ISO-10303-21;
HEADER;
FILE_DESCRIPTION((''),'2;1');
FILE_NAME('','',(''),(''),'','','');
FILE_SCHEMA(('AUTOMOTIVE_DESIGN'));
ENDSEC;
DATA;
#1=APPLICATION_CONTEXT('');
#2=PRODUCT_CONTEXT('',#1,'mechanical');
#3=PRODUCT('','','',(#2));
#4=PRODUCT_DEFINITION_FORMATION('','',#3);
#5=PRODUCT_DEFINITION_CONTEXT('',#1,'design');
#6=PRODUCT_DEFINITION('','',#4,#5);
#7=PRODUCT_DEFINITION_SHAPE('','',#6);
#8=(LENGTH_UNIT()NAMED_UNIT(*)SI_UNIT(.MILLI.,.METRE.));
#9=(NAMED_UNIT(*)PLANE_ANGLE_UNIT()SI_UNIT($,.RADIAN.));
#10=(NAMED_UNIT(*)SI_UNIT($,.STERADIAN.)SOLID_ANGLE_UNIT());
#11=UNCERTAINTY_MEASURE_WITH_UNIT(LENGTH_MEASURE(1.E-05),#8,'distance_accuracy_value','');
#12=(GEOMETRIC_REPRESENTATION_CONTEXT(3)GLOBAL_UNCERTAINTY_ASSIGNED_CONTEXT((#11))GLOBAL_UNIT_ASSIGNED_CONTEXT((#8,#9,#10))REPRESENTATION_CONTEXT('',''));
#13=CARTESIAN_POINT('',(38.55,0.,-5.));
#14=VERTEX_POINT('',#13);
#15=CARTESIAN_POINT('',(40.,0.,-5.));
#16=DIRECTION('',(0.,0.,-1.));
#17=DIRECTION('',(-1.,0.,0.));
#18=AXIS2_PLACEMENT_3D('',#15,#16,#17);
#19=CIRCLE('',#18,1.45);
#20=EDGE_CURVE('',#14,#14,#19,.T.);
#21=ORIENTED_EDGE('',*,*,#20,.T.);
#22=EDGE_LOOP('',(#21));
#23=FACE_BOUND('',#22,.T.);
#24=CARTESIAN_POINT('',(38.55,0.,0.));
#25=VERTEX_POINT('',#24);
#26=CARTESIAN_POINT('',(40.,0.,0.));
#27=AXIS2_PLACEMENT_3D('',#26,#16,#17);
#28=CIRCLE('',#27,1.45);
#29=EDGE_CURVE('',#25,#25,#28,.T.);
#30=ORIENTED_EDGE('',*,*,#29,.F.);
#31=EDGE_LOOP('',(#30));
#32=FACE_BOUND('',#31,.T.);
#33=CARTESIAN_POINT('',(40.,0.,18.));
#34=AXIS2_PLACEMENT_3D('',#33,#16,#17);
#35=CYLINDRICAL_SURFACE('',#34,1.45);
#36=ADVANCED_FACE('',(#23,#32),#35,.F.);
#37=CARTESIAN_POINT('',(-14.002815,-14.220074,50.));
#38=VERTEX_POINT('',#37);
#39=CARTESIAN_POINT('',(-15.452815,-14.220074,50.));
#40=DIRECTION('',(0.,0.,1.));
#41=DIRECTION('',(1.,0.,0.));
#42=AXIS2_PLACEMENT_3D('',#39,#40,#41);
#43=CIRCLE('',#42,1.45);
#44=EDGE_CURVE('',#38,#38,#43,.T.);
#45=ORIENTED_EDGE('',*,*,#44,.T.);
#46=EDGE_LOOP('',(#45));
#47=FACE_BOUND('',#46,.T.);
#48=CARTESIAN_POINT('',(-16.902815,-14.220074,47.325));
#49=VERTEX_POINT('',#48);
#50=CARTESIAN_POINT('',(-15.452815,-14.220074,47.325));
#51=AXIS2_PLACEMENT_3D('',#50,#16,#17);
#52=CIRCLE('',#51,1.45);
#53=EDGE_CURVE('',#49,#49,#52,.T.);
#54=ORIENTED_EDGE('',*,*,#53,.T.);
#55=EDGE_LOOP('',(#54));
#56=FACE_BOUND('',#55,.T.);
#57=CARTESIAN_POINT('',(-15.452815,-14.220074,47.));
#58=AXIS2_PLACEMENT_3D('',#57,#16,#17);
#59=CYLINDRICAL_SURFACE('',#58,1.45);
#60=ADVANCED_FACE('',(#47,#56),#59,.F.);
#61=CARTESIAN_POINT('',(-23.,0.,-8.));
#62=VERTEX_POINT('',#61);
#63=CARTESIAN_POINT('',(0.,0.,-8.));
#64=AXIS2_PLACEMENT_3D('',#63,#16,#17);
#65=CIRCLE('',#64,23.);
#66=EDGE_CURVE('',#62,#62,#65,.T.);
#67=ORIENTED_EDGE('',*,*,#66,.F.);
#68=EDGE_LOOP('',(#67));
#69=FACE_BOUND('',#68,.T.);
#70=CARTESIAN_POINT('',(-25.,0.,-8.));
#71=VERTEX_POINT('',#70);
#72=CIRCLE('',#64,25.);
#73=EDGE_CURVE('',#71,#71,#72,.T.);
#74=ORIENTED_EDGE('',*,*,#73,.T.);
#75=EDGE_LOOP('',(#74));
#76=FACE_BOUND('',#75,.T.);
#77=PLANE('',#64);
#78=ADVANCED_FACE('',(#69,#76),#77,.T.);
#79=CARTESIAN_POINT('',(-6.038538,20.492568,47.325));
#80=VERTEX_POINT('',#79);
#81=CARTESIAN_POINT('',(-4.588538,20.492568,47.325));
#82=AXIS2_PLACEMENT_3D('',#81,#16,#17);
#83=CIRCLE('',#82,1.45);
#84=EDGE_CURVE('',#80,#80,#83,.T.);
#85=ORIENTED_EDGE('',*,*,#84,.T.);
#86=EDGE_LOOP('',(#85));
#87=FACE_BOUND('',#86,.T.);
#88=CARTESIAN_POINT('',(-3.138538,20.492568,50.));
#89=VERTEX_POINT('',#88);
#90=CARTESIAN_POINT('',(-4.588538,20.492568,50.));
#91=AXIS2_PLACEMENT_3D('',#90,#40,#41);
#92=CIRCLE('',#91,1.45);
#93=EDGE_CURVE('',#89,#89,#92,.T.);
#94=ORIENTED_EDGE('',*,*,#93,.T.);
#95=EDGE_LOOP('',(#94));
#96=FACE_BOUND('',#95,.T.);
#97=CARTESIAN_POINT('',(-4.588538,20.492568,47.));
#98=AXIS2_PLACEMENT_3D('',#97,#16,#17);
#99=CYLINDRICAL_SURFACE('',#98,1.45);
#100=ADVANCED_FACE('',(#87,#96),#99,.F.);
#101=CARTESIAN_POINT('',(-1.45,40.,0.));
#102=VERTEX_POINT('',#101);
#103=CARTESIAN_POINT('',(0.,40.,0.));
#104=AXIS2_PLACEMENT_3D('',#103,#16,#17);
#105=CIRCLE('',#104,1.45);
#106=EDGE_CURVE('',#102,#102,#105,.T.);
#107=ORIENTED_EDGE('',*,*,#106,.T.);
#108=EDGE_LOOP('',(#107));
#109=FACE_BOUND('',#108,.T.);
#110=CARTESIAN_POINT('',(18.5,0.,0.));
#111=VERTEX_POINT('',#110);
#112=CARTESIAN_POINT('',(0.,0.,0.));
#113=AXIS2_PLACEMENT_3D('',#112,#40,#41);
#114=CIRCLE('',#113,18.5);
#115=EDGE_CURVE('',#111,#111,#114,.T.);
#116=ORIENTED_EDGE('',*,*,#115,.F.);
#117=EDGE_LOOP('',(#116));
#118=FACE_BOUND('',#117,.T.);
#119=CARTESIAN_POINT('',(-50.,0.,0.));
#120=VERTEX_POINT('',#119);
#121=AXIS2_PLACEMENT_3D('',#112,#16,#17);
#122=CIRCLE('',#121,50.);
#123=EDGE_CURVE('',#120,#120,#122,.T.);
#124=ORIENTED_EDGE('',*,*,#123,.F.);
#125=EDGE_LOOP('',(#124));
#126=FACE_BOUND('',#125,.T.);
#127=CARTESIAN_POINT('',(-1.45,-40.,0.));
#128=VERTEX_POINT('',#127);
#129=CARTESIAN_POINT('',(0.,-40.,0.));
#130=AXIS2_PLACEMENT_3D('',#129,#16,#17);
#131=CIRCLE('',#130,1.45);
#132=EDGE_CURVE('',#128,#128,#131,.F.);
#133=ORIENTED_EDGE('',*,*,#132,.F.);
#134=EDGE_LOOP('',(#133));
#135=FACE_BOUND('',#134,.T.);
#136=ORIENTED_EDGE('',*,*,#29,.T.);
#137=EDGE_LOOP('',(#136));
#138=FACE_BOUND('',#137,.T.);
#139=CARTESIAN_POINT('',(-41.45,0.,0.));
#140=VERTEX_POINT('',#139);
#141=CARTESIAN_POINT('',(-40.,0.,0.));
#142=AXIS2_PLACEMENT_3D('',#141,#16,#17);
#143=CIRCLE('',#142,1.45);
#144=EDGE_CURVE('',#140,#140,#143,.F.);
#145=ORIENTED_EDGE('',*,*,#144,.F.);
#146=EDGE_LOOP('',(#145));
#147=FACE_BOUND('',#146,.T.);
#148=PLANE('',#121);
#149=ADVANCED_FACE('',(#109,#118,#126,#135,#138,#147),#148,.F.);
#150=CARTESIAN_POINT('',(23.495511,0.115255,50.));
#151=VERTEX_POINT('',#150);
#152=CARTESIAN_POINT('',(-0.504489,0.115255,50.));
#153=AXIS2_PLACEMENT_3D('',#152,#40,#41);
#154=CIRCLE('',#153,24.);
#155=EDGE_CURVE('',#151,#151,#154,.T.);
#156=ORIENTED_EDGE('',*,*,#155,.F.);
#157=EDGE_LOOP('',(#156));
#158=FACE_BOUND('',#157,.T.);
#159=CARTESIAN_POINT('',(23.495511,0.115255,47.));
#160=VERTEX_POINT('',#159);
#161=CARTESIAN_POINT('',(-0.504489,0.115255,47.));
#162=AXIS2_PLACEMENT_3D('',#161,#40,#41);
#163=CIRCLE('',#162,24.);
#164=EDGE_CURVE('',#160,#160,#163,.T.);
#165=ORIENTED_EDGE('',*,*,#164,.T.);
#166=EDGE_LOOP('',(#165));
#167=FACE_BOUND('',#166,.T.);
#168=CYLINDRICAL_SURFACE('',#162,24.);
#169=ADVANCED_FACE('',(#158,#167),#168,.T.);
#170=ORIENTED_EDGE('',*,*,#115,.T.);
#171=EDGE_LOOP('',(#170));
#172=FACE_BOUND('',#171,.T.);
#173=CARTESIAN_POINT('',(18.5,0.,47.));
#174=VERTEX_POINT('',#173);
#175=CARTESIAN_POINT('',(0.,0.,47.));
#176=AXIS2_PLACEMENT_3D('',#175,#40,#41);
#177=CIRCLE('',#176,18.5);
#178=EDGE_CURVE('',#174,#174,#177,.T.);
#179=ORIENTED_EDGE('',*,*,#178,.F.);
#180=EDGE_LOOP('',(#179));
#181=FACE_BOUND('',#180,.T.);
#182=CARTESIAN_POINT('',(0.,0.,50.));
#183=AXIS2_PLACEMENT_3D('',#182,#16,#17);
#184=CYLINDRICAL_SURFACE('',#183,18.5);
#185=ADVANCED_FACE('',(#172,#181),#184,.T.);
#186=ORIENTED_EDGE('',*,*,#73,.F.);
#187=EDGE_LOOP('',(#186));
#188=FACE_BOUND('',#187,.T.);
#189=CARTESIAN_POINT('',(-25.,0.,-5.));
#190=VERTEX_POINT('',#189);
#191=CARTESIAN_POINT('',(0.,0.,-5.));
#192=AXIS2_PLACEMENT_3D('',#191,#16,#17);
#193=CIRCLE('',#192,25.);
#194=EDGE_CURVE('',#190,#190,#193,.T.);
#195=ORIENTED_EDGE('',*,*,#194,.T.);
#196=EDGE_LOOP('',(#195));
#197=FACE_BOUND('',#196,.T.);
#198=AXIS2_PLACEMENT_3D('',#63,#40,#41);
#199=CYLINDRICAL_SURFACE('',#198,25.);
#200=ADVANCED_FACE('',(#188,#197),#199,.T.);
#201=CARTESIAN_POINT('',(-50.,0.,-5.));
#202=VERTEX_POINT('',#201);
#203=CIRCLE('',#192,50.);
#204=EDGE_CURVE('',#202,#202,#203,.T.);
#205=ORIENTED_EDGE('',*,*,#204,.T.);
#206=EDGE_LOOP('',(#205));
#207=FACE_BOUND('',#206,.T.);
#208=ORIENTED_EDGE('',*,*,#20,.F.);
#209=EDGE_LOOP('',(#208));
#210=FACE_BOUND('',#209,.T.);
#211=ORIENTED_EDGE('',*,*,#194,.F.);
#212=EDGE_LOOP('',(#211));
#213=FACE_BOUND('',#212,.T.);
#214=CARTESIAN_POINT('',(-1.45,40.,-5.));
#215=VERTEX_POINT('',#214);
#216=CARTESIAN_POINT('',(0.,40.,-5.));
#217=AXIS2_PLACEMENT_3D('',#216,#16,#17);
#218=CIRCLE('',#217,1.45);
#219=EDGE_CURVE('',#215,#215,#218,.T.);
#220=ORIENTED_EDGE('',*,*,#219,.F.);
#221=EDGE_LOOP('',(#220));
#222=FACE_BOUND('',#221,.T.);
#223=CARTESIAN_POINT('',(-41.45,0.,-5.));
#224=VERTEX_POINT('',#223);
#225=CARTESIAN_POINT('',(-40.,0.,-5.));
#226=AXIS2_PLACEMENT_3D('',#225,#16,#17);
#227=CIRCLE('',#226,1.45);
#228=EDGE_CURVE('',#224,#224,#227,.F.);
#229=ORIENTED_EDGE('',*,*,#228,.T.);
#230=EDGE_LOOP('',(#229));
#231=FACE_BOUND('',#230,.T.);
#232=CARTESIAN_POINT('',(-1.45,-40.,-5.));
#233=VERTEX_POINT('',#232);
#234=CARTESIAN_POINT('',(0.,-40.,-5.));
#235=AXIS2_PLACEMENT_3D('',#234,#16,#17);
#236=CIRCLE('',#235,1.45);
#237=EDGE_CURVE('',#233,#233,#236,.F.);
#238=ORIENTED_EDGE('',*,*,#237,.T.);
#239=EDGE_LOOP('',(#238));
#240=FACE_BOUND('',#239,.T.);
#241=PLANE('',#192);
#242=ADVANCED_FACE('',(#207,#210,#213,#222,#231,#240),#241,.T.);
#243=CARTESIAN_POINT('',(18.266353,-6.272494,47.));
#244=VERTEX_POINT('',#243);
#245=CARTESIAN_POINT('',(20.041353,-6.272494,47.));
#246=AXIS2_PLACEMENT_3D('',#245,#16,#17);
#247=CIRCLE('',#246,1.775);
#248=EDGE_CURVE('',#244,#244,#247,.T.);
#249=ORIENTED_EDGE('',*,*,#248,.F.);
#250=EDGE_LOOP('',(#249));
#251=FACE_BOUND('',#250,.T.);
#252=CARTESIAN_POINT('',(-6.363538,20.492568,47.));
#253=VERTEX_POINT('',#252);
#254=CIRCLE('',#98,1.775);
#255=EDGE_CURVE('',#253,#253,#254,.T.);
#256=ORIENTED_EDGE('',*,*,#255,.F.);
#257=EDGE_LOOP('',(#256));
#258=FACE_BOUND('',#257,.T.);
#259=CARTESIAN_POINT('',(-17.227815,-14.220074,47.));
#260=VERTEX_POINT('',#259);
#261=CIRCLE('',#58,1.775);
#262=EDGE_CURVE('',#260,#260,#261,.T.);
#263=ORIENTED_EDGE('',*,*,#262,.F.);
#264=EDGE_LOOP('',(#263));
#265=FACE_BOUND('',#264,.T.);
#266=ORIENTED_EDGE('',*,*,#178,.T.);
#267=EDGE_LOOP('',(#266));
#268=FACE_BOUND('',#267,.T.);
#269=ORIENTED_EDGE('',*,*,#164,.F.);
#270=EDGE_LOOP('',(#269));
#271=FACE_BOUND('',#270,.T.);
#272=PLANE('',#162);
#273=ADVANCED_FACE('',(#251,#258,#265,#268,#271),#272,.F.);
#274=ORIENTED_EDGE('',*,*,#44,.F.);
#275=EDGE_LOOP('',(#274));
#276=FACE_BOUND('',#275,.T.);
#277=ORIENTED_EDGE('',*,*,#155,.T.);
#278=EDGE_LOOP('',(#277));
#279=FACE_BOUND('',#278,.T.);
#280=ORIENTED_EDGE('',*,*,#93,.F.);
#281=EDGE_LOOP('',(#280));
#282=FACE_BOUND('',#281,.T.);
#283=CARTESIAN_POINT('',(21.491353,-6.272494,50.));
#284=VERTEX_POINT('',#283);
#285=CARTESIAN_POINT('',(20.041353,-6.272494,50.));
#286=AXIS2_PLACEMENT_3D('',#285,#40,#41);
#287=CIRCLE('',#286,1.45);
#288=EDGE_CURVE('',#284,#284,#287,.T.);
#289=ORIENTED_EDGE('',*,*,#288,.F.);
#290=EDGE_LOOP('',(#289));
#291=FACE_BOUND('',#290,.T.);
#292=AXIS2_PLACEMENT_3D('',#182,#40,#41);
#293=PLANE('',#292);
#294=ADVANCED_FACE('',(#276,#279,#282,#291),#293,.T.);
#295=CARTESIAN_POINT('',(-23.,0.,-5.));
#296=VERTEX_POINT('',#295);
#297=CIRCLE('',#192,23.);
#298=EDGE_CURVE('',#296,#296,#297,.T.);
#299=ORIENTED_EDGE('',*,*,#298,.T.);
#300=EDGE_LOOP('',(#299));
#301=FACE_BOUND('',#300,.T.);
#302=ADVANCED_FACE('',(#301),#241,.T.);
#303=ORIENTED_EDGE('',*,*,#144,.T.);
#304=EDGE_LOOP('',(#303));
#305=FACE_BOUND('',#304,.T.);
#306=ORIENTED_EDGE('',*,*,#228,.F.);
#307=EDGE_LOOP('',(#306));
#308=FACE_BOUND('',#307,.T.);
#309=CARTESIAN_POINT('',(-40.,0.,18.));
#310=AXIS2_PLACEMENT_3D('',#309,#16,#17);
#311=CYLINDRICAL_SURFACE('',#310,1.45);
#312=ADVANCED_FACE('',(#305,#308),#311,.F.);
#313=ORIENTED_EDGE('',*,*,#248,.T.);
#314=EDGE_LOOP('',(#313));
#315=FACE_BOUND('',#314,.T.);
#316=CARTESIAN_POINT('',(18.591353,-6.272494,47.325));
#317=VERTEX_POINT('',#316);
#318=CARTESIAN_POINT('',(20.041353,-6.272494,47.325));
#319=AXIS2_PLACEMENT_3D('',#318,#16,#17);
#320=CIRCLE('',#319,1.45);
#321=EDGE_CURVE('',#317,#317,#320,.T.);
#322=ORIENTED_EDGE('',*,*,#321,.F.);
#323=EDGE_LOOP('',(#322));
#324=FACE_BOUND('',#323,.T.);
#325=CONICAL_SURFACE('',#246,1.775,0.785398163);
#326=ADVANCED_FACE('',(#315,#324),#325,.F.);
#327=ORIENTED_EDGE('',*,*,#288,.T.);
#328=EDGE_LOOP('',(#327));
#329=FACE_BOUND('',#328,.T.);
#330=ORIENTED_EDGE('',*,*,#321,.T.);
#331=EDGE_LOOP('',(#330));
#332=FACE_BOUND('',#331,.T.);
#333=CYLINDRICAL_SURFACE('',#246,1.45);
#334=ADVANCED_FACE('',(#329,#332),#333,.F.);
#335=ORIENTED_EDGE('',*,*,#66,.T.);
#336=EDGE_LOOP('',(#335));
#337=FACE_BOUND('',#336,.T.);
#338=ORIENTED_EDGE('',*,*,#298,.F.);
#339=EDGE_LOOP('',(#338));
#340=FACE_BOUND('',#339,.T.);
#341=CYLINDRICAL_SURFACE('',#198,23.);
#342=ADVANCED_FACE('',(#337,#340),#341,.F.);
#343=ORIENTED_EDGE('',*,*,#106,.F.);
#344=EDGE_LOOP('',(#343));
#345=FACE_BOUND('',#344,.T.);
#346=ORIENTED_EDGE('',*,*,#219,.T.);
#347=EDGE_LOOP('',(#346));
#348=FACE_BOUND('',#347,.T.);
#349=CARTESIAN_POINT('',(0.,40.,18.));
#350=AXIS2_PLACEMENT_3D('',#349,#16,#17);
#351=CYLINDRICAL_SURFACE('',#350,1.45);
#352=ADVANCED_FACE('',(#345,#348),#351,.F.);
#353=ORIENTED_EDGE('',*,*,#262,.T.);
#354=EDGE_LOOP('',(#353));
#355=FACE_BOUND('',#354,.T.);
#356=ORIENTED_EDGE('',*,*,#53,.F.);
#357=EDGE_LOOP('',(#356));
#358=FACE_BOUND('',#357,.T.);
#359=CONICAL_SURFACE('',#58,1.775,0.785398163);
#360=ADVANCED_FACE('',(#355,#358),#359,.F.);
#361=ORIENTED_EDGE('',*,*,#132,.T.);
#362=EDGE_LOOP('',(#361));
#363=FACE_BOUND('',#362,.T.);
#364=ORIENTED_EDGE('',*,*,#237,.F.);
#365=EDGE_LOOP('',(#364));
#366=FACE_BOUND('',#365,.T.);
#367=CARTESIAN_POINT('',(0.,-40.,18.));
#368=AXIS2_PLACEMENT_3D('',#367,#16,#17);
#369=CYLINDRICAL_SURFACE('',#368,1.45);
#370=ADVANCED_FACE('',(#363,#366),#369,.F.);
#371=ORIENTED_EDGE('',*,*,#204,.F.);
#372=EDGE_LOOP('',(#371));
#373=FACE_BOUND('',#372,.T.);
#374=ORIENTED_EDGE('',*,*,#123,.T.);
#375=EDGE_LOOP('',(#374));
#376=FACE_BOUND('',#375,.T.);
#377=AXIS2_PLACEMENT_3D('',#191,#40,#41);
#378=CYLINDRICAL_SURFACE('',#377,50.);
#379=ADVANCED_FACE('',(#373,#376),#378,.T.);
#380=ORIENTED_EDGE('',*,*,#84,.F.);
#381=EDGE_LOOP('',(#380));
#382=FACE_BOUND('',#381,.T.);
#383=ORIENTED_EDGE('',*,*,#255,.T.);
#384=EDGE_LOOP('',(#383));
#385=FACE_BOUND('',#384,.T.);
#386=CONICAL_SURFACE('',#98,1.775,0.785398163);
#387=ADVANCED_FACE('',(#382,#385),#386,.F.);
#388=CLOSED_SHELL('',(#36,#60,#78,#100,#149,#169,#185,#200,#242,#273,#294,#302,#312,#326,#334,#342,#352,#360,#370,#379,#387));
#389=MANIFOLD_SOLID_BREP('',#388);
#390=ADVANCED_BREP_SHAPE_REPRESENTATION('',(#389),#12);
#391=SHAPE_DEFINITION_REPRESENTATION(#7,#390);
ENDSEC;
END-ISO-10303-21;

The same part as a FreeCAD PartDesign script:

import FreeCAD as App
import Part
import Sketcher

doc = App.newDocument("Part")
body = doc.addObject("PartDesign::Body", "Body")

sketch1 = body.newObject("Sketcher::SketchObject", "Sketch")
sketch1.AttachmentSupport = (doc.getObject("XY_Plane"), [""])
sketch1.MapMode = "FlatFace"
sketch1.addGeometry(Part.Circle(App.Vector(0, 0, 0), App.Vector(0, 0, 1), 18.5), False)
sketch1.addConstraint(Sketcher.Constraint("Coincident", 0, 3, -1, 1))
sketch1.addConstraint(Sketcher.Constraint("Diameter", 0, 37.0))
pad1 = body.newObject("PartDesign::Pad", "Pad")
pad1.Profile = sketch1
pad1.Length = 50

sketch2 = body.newObject("Sketcher::SketchObject", "Sketch001")
sketch2.AttachmentSupport = (doc.getObject("XY_Plane"), [""])
sketch2.MapMode = "FlatFace"
sketch2.addGeometry(Part.Circle(App.Vector(0, 0, 0), App.Vector(0, 0, 1), 50), False)
sketch2.addConstraint(Sketcher.Constraint("Coincident", 0, 3, -1, 1))
sketch2.addConstraint(Sketcher.Constraint("Diameter", 0, 100.0))
pad2 = body.newObject("PartDesign::Pad", "Pad001")
pad2.Profile = sketch2
pad2.Length = 5
pad2.Reversed = True

sketch3 = body.newObject("Sketcher::SketchObject", "Sketch002")
sketch3.AttachmentSupport = (doc.getObject("XY_Plane"), [""])
sketch3.MapMode = "FlatFace"
sketch3.AttachmentOffset = App.Placement(App.Vector(0, 0, -5), App.Rotation())
sketch3.addGeometry(Part.Circle(App.Vector(0, 0, 0), App.Vector(0, 0, 1), 25), False)
sketch3.addGeometry(Part.Circle(App.Vector(0, 0, 0), App.Vector(0, 0, 1), 23), False)
sketch3.addConstraint(Sketcher.Constraint("Coincident", 0, 3, -1, 1))
sketch3.addConstraint(Sketcher.Constraint("Coincident", 1, 3, -1, 1))
sketch3.addConstraint(Sketcher.Constraint("Diameter", 0, 50.0))
sketch3.addConstraint(Sketcher.Constraint("Diameter", 1, 46.0))
pad3 = body.newObject("PartDesign::Pad", "Pad002")
pad3.Profile = sketch3
pad3.Length = 3
pad3.Reversed = True

sketch4 = body.newObject("Sketcher::SketchObject", "Sketch003")
sketch4.AttachmentSupport = (doc.getObject("XY_Plane"), [""])
sketch4.MapMode = "FlatFace"
sketch4.AttachmentOffset = App.Placement(App.Vector(0, 0, -5), App.Rotation())
sketch4.addGeometry(Part.Circle(App.Vector(40, 0, 0), App.Vector(0, 0, 1), 1.45), False)
sketch4.addGeometry(Part.Circle(App.Vector(0, 40, 0), App.Vector(0, 0, 1), 1.45), False)
sketch4.addGeometry(Part.Circle(App.Vector(-40, 0, 0), App.Vector(0, 0, 1), 1.45), False)
sketch4.addGeometry(Part.Circle(App.Vector(0, -40, 0), App.Vector(0, 0, 1), 1.45), False)
sketch4.addConstraint(Sketcher.Constraint("Equal", 0, 1))
sketch4.addConstraint(Sketcher.Constraint("Equal", 1, 2))
sketch4.addConstraint(Sketcher.Constraint("Equal", 2, 3))
sketch4.addConstraint(Sketcher.Constraint("Symmetric", 0, 3, 2, 3, -1, 1))
sketch4.addConstraint(Sketcher.Constraint("Symmetric", 1, 3, 3, 3, -1, 1))
sketch4.addConstraint(Sketcher.Constraint("PointOnObject", 0, 3, -1))
sketch4.addConstraint(Sketcher.Constraint("PointOnObject", 1, 3, -2))
sketch4.addConstraint(Sketcher.Constraint("Diameter", 0, 2.9))
sketch4.addConstraint(Sketcher.Constraint("DistanceX", -1, 1, 0, 3, 40.0))
sketch4.addConstraint(Sketcher.Constraint("DistanceY", -1, 1, 1, 3, 40.0))
pocket1 = body.newObject("PartDesign::Pocket", "Pocket")
pocket1.Profile = sketch4
pocket1.Length = 23
pocket1.Reversed = True

sketch5 = body.newObject("Sketcher::SketchObject", "Sketch004")
sketch5.AttachmentSupport = (doc.getObject("XY_Plane"), [""])
sketch5.MapMode = "FlatFace"
sketch5.AttachmentOffset = App.Placement(App.Vector(0, 0, 50), App.Rotation())
sketch5.addGeometry(Part.Circle(App.Vector(-0.504489, 0.115255, 0), App.Vector(0, 0, 1), 24), False)
sketch5.addConstraint(Sketcher.Constraint("Diameter", 0, 48.0))
sketch5.addConstraint(Sketcher.Constraint("DistanceX", 0, 3, -1, 1, 0.504489))
sketch5.addConstraint(Sketcher.Constraint("DistanceY", -1, 1, 0, 3, 0.115255))
pad4 = body.newObject("PartDesign::Pad", "Pad003")
pad4.Profile = sketch5
pad4.Length = 3
pad4.Reversed = True

sketch6 = body.newObject("Sketcher::SketchObject", "Sketch005")
sketch6.AttachmentSupport = (doc.getObject("XY_Plane"), [""])
sketch6.MapMode = "FlatFace"
sketch6.AttachmentOffset = App.Placement(App.Vector(0, 0, 47), App.Rotation())
sketch6.addGeometry(Part.Circle(App.Vector(-4.588538, 20.492568, 0), App.Vector(0, 0, 1), 1.45), False)
sketch6.addGeometry(Part.Circle(App.Vector(-15.452815, -14.220074, 0), App.Vector(0, 0, 1), 1.45), False)
sketch6.addGeometry(Part.Circle(App.Vector(20.041353, -6.272494, 0), App.Vector(0, 0, 1), 1.45), False)
sketch6.addConstraint(Sketcher.Constraint("Equal", 0, 1))
sketch6.addConstraint(Sketcher.Constraint("Equal", 1, 2))
sketch6.addConstraint(Sketcher.Constraint("Diameter", 0, 2.9))
sketch6.addConstraint(Sketcher.Constraint("DistanceY", 1, 3, 0, 3, 34.712641))
sketch6.addConstraint(Sketcher.Constraint("DistanceX", 0, 3, 2, 3, 24.62989))
sketch6.addConstraint(Sketcher.Constraint("DistanceY", 2, 3, 0, 3, 26.765061))
sketch6.addConstraint(Sketcher.Constraint("DistanceX", 1, 3, 2, 3, 35.494168))
sketch6.addConstraint(Sketcher.Constraint("DistanceX", 0, 3, -1, 1, 4.588538))
sketch6.addConstraint(Sketcher.Constraint("DistanceY", -1, 1, 0, 3, 20.492568))
doc.recompute()
hole = body.newObject("PartDesign::Hole", "Hole")
hole.Profile = sketch6
hole.ThreadType = "None"
hole.Diameter = 2.9
hole.DepthType = "Dimension"
hole.Depth = 10
hole.DrillPoint = "Angled"
hole.DrillPointAngle = 118
hole.HoleCutType = "Countersink"
hole.HoleCutDiameter = 3.55
hole.HoleCutCountersinkAngle = 90
hole.Reversed = True

doc.recompute()
